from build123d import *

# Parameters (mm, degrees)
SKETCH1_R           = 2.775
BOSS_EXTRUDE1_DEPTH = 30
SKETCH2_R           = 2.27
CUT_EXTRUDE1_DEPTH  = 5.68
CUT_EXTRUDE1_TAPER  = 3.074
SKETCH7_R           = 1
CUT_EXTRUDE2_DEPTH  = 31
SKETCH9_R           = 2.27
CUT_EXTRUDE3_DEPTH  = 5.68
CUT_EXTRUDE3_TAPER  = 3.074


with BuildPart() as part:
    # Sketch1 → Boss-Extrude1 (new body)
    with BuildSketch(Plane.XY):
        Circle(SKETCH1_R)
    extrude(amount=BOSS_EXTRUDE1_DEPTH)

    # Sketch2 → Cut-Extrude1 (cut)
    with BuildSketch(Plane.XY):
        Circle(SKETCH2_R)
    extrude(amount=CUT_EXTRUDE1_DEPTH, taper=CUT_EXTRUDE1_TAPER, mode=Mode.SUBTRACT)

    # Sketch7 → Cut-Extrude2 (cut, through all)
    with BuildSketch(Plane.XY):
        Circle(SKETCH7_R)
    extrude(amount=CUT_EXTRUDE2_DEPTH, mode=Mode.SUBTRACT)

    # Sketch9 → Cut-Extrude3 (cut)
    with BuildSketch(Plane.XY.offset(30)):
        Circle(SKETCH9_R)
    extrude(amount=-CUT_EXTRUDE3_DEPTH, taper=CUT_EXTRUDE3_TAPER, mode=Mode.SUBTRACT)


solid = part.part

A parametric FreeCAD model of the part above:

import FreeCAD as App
import Part
import Sketcher

V = App.Vector

doc = App.newDocument("Part")
params = doc.addObject("Spreadsheet::Sheet", "Params")
for row, (alias, value) in enumerate([
    ("sketch1_diameter", "5.55 mm"),
    ("pad1_length", "30 mm"),
    ("sketch2_diameter", "4.54 mm"),
    ("pocket1_length", "5.68 mm"),
    ("pocket1_taper", "-3.074 deg"),
    ("sketch3_diameter", "2 mm"),
    ("sketch4_diameter", "4.54 mm"),
    ("pocket3_length", "5.68 mm"),
    ("pocket3_taper", "-3.074 deg"),
], start=1):
    params.set(f"A{row}", alias)
    params.set(f"B{row}", "=" + value)
    params.setAlias(f"B{row}", alias)

body = doc.addObject("PartDesign::Body", "Body")

sketch1 = doc.addObject("Sketcher::SketchObject", "Sketch")
body.addObject(sketch1)
sketch1.AttachmentSupport = (doc.XY_Plane, [""])
sketch1.MapMode = "FlatFace"
sketch1.addGeometry(Part.Circle(V(0, 0, 0), V(0, 0, 1), 2.775), False)
sketch1.addConstraint([
    Sketcher.Constraint("Coincident", 0, 3, -1, 1),
    Sketcher.Constraint("Diameter", 0, 5.55),
])
sketch1.setExpression("Constraints[1]", "Params.sketch1_diameter")
pad1 = doc.addObject("PartDesign::Pad", "Pad")
body.addObject(pad1)
pad1.Profile = sketch1
pad1.setExpression("Length", "Params.pad1_length")

sketch2 = doc.addObject("Sketcher::SketchObject", "Sketch001")
body.addObject(sketch2)
sketch2.AttachmentSupport = (doc.XY_Plane, [""])
sketch2.MapMode = "FlatFace"
sketch2.addGeometry(Part.Circle(V(0, 0, 0), V(0, 0, 1), 2.27), False)
sketch2.addConstraint([
    Sketcher.Constraint("Coincident", 0, 3, -1, 1),
    Sketcher.Constraint("Diameter", 0, 4.54),
])
sketch2.setExpression("Constraints[1]", "Params.sketch2_diameter")
pocket1 = doc.addObject("PartDesign::Pocket", "Pocket")
body.addObject(pocket1)
pocket1.Profile = sketch2
pocket1.setExpression("Length", "Params.pocket1_length")
pocket1.Reversed = True
pocket1.setExpression("TaperAngle", "Params.pocket1_taper")

sketch3 = doc.addObject("Sketcher::SketchObject", "Sketch002")
body.addObject(sketch3)
sketch3.AttachmentSupport = (doc.XY_Plane, [""])
sketch3.MapMode = "FlatFace"
sketch3.addGeometry(Part.Circle(V(0, 0, 0), V(0, 0, 1), 1), False)
sketch3.addConstraint([
    Sketcher.Constraint("Coincident", 0, 3, -1, 1),
    Sketcher.Constraint("Diameter", 0, 2.0),
])
sketch3.setExpression("Constraints[1]", "Params.sketch3_diameter")
pocket2 = doc.addObject("PartDesign::Pocket", "Pocket001")
body.addObject(pocket2)
pocket2.Profile = sketch3
pocket2.Type = "ThroughAll"
pocket2.Reversed = True

sketch4 = doc.addObject("Sketcher::SketchObject", "Sketch003")
body.addObject(sketch4)
sketch4.AttachmentSupport = (doc.XY_Plane, [""])
sketch4.MapMode = "FlatFace"
sketch4.AttachmentOffset = App.Placement(V(0, 0, 30), App.Rotation())
sketch4.addGeometry(Part.Circle(V(0, 0, 0), V(0, 0, 1), 2.27), False)
sketch4.addConstraint([
    Sketcher.Constraint("Coincident", 0, 3, -1, 1),
    Sketcher.Constraint("Diameter", 0, 4.54),
])
sketch4.setExpression("Constraints[1]", "Params.sketch4_diameter")
pocket3 = doc.addObject("PartDesign::Pocket", "Pocket002")
body.addObject(pocket3)
pocket3.Profile = sketch4
pocket3.setExpression("Length", "Params.pocket3_length")
pocket3.setExpression("TaperAngle", "Params.pocket3_taper")

doc.recompute()
